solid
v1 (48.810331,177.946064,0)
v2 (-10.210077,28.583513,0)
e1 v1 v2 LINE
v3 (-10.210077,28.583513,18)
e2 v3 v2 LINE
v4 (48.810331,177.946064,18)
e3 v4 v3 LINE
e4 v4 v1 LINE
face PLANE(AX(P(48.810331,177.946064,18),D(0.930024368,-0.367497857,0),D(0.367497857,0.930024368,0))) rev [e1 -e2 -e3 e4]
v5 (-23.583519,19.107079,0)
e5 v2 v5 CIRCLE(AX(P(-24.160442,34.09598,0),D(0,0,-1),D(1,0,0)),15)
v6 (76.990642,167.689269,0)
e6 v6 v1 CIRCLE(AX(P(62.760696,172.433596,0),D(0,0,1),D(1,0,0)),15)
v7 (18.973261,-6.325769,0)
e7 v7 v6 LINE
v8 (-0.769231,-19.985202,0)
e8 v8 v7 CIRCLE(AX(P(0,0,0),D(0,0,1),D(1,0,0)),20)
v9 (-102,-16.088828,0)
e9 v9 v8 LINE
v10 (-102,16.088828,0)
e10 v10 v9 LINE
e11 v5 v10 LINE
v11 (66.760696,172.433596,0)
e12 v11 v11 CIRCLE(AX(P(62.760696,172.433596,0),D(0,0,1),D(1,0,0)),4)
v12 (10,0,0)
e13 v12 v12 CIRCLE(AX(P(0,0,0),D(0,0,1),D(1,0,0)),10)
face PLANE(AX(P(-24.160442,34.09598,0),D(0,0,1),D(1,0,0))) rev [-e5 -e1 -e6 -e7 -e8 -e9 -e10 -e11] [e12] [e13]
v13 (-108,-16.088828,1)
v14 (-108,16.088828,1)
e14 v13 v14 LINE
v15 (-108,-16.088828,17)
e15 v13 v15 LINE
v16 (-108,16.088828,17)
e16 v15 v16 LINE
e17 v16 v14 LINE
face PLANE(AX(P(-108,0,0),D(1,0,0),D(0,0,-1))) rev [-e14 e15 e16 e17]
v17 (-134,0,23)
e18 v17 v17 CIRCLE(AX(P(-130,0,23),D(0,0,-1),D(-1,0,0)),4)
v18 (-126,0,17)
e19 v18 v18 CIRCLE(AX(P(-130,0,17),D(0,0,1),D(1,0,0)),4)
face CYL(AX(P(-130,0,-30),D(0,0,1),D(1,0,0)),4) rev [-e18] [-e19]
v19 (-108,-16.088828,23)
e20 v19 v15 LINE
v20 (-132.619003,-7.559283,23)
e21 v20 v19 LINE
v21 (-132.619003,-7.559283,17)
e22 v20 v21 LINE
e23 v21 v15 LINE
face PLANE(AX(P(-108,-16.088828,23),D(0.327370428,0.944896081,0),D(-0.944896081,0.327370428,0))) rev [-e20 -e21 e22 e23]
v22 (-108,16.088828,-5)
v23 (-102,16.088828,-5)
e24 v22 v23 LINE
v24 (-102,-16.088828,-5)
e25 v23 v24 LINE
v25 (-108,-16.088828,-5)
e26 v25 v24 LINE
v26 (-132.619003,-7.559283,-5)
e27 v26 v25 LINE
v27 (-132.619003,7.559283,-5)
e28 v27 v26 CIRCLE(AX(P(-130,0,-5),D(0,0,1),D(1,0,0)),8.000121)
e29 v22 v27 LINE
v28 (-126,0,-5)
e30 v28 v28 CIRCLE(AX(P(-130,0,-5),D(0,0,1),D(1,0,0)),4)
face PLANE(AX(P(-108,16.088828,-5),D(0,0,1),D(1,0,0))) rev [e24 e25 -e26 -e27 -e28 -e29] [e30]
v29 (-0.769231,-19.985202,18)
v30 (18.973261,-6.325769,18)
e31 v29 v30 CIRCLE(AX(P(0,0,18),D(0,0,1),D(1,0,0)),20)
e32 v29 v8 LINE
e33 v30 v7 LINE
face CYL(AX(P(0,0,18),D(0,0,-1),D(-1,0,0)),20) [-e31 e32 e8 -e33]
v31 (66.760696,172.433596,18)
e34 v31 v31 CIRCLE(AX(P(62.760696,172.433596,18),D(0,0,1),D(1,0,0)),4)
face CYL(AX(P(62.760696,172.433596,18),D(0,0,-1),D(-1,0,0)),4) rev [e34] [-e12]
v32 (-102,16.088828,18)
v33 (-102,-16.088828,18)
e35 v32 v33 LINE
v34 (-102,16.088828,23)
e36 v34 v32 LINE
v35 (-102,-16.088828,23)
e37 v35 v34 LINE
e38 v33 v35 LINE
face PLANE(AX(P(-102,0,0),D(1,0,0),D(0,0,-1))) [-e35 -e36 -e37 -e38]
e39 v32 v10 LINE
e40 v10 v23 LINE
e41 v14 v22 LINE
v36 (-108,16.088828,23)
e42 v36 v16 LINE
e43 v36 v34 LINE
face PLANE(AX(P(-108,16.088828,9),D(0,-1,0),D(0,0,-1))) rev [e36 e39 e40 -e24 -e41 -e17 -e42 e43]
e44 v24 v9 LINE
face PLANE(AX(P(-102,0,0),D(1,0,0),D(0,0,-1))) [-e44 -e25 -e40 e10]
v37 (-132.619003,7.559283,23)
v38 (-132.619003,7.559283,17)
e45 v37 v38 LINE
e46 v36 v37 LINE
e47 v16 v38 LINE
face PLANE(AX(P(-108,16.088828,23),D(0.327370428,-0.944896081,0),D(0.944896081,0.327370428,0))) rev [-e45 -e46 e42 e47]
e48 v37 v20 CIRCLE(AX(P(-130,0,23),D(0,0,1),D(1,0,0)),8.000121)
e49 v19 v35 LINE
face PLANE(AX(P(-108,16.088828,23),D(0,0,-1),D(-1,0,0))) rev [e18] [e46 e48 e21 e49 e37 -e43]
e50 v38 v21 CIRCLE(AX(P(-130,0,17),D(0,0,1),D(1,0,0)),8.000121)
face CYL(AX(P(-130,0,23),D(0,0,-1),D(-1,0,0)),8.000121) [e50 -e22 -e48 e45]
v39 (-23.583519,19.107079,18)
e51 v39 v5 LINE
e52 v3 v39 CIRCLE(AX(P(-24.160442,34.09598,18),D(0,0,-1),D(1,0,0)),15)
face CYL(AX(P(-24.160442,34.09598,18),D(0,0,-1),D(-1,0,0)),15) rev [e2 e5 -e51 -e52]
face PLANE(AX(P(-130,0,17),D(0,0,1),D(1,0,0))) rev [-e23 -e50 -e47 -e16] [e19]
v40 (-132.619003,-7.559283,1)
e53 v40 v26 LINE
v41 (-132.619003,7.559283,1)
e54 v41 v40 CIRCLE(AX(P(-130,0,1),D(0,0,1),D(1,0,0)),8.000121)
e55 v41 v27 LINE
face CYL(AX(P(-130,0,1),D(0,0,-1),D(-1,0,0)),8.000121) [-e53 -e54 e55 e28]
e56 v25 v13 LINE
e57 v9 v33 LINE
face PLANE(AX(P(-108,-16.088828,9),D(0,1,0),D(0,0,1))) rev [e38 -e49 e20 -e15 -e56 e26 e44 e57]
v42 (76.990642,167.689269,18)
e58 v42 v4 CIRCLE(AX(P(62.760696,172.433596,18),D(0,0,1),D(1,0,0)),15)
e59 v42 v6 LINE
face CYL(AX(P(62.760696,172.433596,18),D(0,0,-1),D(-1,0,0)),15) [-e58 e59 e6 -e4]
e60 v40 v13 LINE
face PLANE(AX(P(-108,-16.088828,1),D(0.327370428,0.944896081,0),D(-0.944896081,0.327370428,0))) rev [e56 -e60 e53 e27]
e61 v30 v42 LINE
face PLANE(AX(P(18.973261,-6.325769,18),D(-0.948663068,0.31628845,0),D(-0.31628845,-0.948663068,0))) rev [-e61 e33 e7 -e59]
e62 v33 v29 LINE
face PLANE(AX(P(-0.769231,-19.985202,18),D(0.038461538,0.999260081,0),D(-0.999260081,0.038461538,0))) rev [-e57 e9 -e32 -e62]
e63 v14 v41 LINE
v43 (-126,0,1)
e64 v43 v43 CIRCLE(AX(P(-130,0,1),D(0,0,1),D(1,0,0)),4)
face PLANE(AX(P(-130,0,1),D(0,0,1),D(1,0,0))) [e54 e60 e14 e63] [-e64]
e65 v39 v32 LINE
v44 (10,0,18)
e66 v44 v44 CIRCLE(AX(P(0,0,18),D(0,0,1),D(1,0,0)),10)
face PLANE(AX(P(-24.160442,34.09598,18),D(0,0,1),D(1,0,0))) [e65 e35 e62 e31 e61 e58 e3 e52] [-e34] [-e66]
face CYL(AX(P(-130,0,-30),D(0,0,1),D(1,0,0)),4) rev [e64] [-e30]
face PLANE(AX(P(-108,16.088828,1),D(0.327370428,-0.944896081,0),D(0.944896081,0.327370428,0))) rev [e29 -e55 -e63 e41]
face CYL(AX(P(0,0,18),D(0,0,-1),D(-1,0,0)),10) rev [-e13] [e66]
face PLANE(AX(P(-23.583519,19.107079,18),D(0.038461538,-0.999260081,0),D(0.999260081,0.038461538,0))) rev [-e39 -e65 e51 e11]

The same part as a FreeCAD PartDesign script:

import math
import FreeCAD as App
import Part
import Sketcher
Q = App.Units.Quantity

doc = App.newDocument("Part")
body = doc.addObject("PartDesign::Body", "Body")

# Sketch on XY plane
sketch1 = body.newObject("Sketcher::SketchObject", "Sketch")
sketch1.AttachmentSupport = (doc.getObject("XY_Plane"), [""])
sketch1.MapMode = "FlatFace"
sketch1.addGeometry([
    Part.LineSegment(App.Vector(49, 178, 0), App.Vector(-10, 29, 0)),  # 0
    Part.ArcOfCircle(Part.Circle(App.Vector(-24, 34, 0), App.Vector(0, 0, 1), 15), math.radians(-88), math.radians(-22)),  # 1
    Part.LineSegment(App.Vector(-24, 19, 0), App.Vector(-131, 15, 0)),  # 2
    Part.ArcOfCircle(Part.Circle(App.Vector(-130, 0, 0), App.Vector(0, 0, 1), 15), math.radians(92), math.radians(268)),  # 3
    Part.LineSegment(App.Vector(-131, -15, 0), App.Vector(-1, -20, 0)),  # 4
    Part.ArcOfCircle(Part.Circle(App.Vector(0, 0, 0), App.Vector(0, 0, 1), 20), math.radians(-92), math.radians(-18)),  # 5
    Part.LineSegment(App.Vector(19, -6, 0), App.Vector(77, 168, 0)),  # 6
    Part.ArcOfCircle(Part.Circle(App.Vector(63, 172, 0), App.Vector(0, 0, 1), 15), math.radians(-18), math.radians(158)),  # 7
], False)
sketch1.addConstraint([
    Sketcher.Constraint("Tangent", 0, 2, 1, 2),
    Sketcher.Constraint("Tangent", 1, 1, 2, 1),
    Sketcher.Constraint("Tangent", 2, 2, 3, 1),
    Sketcher.Constraint("Tangent", 3, 2, 4, 1),
    Sketcher.Constraint("Tangent", 4, 2, 5, 1),
    Sketcher.Constraint("Tangent", 5, 2, 6, 1),
    Sketcher.Constraint("Tangent", 6, 2, 7, 1),
    Sketcher.Constraint("Tangent", 7, 2, 0, 1),
    Sketcher.Constraint("Coincident", 5, 3, -1, 1),
    Sketcher.Constraint("Equal", 1, 3),
    Sketcher.Constraint("Equal", 3, 7),
    Sketcher.Constraint("Symmetric", 2, 2, 3, 2, -1),
    Sketcher.Constraint("Radius", 1, Q("15 mm")),
    Sketcher.Constraint("Radius", 5, Q("20 mm")),
    Sketcher.Constraint("DistanceX", 3, 3, -1, 1, Q("130 mm")),
    Sketcher.Constraint("Distance", 2, Q("107.072629 mm")),
    Sketcher.Constraint("DistanceX", -1, 1, 5, 2, Q("18.973261 mm")),
    Sketcher.Constraint("DistanceY", -1, 1, 6, 2, Q("167.689269 mm")),
])
pad1 = body.newObject("PartDesign::Pad", "Pad")
pad1.Profile = sketch1
pad1.Length = 18

# Sketch on XY plane
sketch2 = body.newObject("Sketcher::SketchObject", "Sketch001")
sketch2.AttachmentSupport = (doc.getObject("XY_Plane"), [""])
sketch2.MapMode = "FlatFace"
sketch2.addGeometry([
    Part.Circle(App.Vector(62.8, 172.4, 0), App.Vector(0, 0, 1), 4),
    Part.Circle(App.Vector(0, 0, 0), App.Vector(0, 0, 1), 10),
], False)
sketch2.addConstraint([
    Sketcher.Constraint("Coincident", 1, 3, -1, 1),
    Sketcher.Constraint("Diameter", 0, Q("8 mm")),
    Sketcher.Constraint("Diameter", 1, Q("20 mm")),
    Sketcher.Constraint("DistanceX", -1, 1, 0, 3, Q("62.760696 mm")),
    Sketcher.Constraint("DistanceY", -1, 1, 0, 3, Q("172.433596 mm")),
])
pocket1 = body.newObject("PartDesign::Pocket", "Pocket")
pocket1.Profile = sketch2
pocket1.Length = 18
pocket1.Reversed = True

# Sketch on YZ plane
sketch3 = body.newObject("Sketcher::SketchObject", "Sketch002")
sketch3.AttachmentSupport = (doc.getObject("YZ_Plane"), [""])
sketch3.MapMode = "FlatFace"
sketch3.AttachmentOffset = App.Placement(App.Vector(0, 0, -102), App.Rotation())
sketch3.addGeometry([
    Part.LineSegment(App.Vector(25, -8, 0), App.Vector(-38, -8, 0)),
    Part.LineSegment(App.Vector(-38, -8, 0), App.Vector(-38, 25, 0)),
    Part.LineSegment(App.Vector(-38, 25, 0), App.Vector(25, 25, 0)),
    Part.LineSegment(App.Vector(25, 25, 0), App.Vector(25, -8, 0)),
], False)
sketch3.addConstraint([
    Sketcher.Constraint("Coincident", 0, 2, 1, 1),
    Sketcher.Constraint("Coincident", 1, 2, 2, 1),
    Sketcher.Constraint("Coincident", 2, 2, 3, 1),
    Sketcher.Constraint("Coincident", 3, 2, 0, 1),
    Sketcher.Constraint("Horizontal", 0),
    Sketcher.Constraint("Vertical", 1),
    Sketcher.Constraint("Horizontal", 2),
    Sketcher.Constraint("Vertical", 3),
    Sketcher.Constraint("DistanceY", 1, 1, 1, 2, Q("33.000031 mm")),
    Sketcher.Constraint("DistanceX", 0, 2, 0, 1, Q("62.878437 mm")),
    Sketcher.Constraint("DistanceX", -1, 1, 2, 2, Q("25.364439 mm")),
    Sketcher.Constraint("DistanceY", 0, 2, -1, 1, Q("8.305176 mm")),
])
pocket2 = body.newObject("PartDesign::Pocket", "Pocket001")
pocket2.Profile = sketch3
pocket2.Length = 60

# Sketch on YZ plane
sketch4 = body.newObject("Sketcher::SketchObject", "Sketch003")
sketch4.AttachmentSupport = (doc.getObject("YZ_Plane"), [""])
sketch4.MapMode = "FlatFace"
sketch4.AttachmentOffset = App.Placement(App.Vector(0, 0, -102), App.Rotation())
sketch4.addGeometry([
    Part.LineSegment(App.Vector(-16, -5, 0), App.Vector(-16, 23, 0)),
    Part.LineSegment(App.Vector(-16, 23, 0), App.Vector(16, 23, 0)),
    Part.LineSegment(App.Vector(16, 23, 0), App.Vector(16, -5, 0)),
    Part.LineSegment(App.Vector(16, -5, 0), App.Vector(-16, -5, 0)),
], False)
sketch4.addConstraint([
    Sketcher.Constraint("Coincident", 0, 2, 1, 1),
    Sketcher.Constraint("Coincident", 1, 2, 2, 1),
    Sketcher.Constraint("Coincident", 2, 2, 3, 1),
    Sketcher.Constraint("Coincident", 3, 2, 0, 1),
    Sketcher.Constraint("Vertical", 0),
    Sketcher.Constraint("Horizontal", 1),
    Sketcher.Constraint("Vertical", 2),
    Sketcher.Constraint("Horizontal", 3),
    Sketcher.Constraint("DistanceY", 0, 1, 0, 2, Q("28 mm")),
    Sketcher.Constraint("DistanceY", -1, 1, 0, 2, Q("23 mm")),
    Sketcher.Constraint("DistanceX", 1, 1, 1, 2, Q("32.177655 mm")),
    Sketcher.Constraint("DistanceX", 0, 2, -1, 1, Q("16.088828 mm")),
])
pad2 = body.newObject("PartDesign::Pad", "Pad001")
pad2.Profile = sketch4
pad2.Length = 6
pad2.Reversed = True

# Sketch on XY plane
sketch5 = body.newObject("Sketcher::SketchObject", "Sketch004")
sketch5.AttachmentSupport = (doc.getObject("XY_Plane"), [""])
sketch5.MapMode = "FlatFace"
sketch5.AttachmentOffset = App.Placement(App.Vector(0, 0, -5), App.Rotation())
sketch5.addGeometry([
    Part.LineSegment(App.Vector(-108, 16, 0), App.Vector(-133, 8, 0)),
    Part.ArcOfCircle(Part.Circle(App.Vector(-130, 0, 0), App.Vector(0, 0, 1), 8), math.radians(109), math.radians(251)),
    Part.LineSegment(App.Vector(-133, -8, 0), App.Vector(-108, -16, 0)),
    Part.LineSegment(App.Vector(-108, -16, 0), App.Vector(-108, 16, 0)),
], False)
sketch5.addConstraint([
    Sketcher.Constraint("Tangent", 0, 2, 1, 1),
    Sketcher.Constraint("Tangent", 1, 2, 2, 1),
    Sketcher.Constraint("Coincident", 2, 2, 3, 1),
    Sketcher.Constraint("Coincident", 3, 2, 0, 1),
    Sketcher.Constraint("Vertical", 3),
    Sketcher.Constraint("Symmetric", 0, 2, 1, 2, -1),
    Sketcher.Constraint("DistanceX", 1, 3, -1, 1, Q("130 mm")),
    Sketcher.Constraint("DistanceX", 2, 2, -1, 1, Q("108 mm")),
    Sketcher.Constraint("Radius", 1, Q("8.000121 mm")),
    Sketcher.Constraint("Distance", 0, Q("26.05472 mm")),
])
pad3 = body.newObject("PartDesign::Pad", "Pad002")
pad3.Profile = sketch5
pad3.Length = 6

# Sketch on XY plane
sketch6 = body.newObject("Sketcher::SketchObject", "Sketch005")
sketch6.AttachmentSupport = (doc.getObject("XY_Plane"), [""])
sketch6.MapMode = "FlatFace"
sketch6.AttachmentOffset = App.Placement(App.Vector(0, 0, 17), App.Rotation())
sketch6.addGeometry([
    Part.LineSegment(App.Vector(-108, 16, 0), App.Vector(-133, 8, 0)),
    Part.ArcOfCircle(Part.Circle(App.Vector(-130, 0, 0), App.Vector(0, 0, 1), 8), math.radians(109), math.radians(251)),
    Part.LineSegment(App.Vector(-133, -8, 0), App.Vector(-108, -16, 0)),
    Part.LineSegment(App.Vector(-108, -16, 0), App.Vector(-108, 16, 0)),
], False)
sketch6.addConstraint([
    Sketcher.Constraint("Tangent", 0, 2, 1, 1),
    Sketcher.Constraint("Tangent", 1, 2, 2, 1),
    Sketcher.Constraint("Coincident", 2, 2, 3, 1),
    Sketcher.Constraint("Coincident", 3, 2, 0, 1),
    Sketcher.Constraint("Vertical", 3),
    Sketcher.Constraint("Symmetric", 0, 2, 1, 2, -1),
    Sketcher.Constraint("DistanceX", 1, 3, -1, 1, Q("130 mm")),
    Sketcher.Constraint("DistanceX", 2, 2, -1, 1, Q("108 mm")),
    Sketcher.Constraint("Radius", 1, Q("8.000121 mm")),
    Sketcher.Constraint("Distance", 0, Q("26.05472 mm")),
])
pad4 = body.newObject("PartDesign::Pad", "Pad003")
pad4.Profile = sketch6
pad4.Length = 6

# Sketch on XY plane
sketch7 = body.newObject("Sketcher::SketchObject", "Sketch006")
sketch7.AttachmentSupport = (doc.getObject("XY_Plane"), [""])
sketch7.MapMode = "FlatFace"
sketch7.addGeometry(Part.Circle(App.Vector(-130, 0, 0), App.Vector(0, 0, 1), 4), False)
sketch7.addConstraint([
    Sketcher.Constraint("PointOnObject", 0, 3, -1),
    Sketcher.Constraint("Diameter", 0, Q("8 mm")),
    Sketcher.Constraint("DistanceX", 0, 3, -1, 1, Q("130 mm")),
])
pocket3 = body.newObject("PartDesign::Pocket", "Pocket002")
pocket3.Profile = sketch7
pocket3.Length = 60
pocket3.Midplane = True

doc.recompute()
